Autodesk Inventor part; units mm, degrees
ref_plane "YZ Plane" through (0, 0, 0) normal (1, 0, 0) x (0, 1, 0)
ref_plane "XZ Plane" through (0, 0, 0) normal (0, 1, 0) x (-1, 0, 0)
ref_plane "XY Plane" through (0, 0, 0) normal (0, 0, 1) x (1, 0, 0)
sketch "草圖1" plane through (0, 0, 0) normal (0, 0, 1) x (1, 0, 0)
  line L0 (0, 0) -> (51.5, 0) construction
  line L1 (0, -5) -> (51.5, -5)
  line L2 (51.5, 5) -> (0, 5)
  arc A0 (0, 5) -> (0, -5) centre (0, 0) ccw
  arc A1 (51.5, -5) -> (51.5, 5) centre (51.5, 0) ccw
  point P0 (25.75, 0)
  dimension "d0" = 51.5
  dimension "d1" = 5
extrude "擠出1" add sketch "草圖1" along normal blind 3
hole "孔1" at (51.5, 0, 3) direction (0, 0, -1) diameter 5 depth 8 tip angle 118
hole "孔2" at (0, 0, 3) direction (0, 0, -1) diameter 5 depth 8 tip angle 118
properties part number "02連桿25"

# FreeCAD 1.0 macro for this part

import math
import FreeCAD as App
import Part
import Sketcher
from FreeCAD import Vector
Q = App.Units.Quantity

doc = App.newDocument("Part")
params = doc.addObject("Spreadsheet::Sheet", "Params")
for row, (alias, value) in enumerate([
    ("sketch1_radius", "5 mm"),
    ("sketch1_width", "51.5 mm"),
    ("pad1_length", "3 mm"),
    ("sketch2_diameter", "5 mm"),
    ("hole_diameter", "5 mm"),
    ("hole_depth", "8 mm"),
    ("sketch3_diameter", "5 mm"),
    ("hole2_diameter", "5 mm"),
    ("hole2_depth", "8 mm"),
], start=1):
    params.set(f"A{row}", alias)
    params.set(f"B{row}", "=" + value)
    params.setAlias(f"B{row}", alias)

body = doc.addObject("PartDesign::Body", "Body")

sketch1 = body.newObject("Sketcher::SketchObject", "Sketch")
sketch1.AttachmentSupport = (doc.getObject("XY_Plane"), [""])
sketch1.MapMode = "FlatFace"
sketch1.addGeometry([
    Part.ArcOfCircle(Part.Circle(Vector(0, 0, 0), Vector(0, 0, 1), 5), math.radians(90), math.radians(270)),
    Part.LineSegment(Vector(0, -5, 0), Vector(51.5, -5, 0)),
    Part.ArcOfCircle(Part.Circle(Vector(51.5, 0, 0), Vector(0, 0, 1), 5), math.radians(-90), math.radians(90)),
    Part.LineSegment(Vector(51.5, 5, 0), Vector(0, 5, 0)),
], False)
sketch1.addConstraint([
    Sketcher.Constraint("Tangent", 0, 2, 1, 1),
    Sketcher.Constraint("Tangent", 1, 2, 2, 1),
    Sketcher.Constraint("Tangent", 2, 2, 3, 1),
    Sketcher.Constraint("Tangent", 3, 2, 0, 1),
    Sketcher.Constraint("Horizontal", 1),
    Sketcher.Constraint("Horizontal", 3),
    Sketcher.Constraint("Coincident", 0, 3, -1, 1),
    Sketcher.Constraint("Radius", 0, Q("5 mm")),
    Sketcher.Constraint("DistanceX", 1, 1, 1, 2, Q("51.5 mm")),
])
sketch1.setExpression("Constraints[7]", "Params.sketch1_radius")
sketch1.setExpression("Constraints[8]", "Params.sketch1_width")
pad1 = body.newObject("PartDesign::Pad", "Pad")
pad1.Profile = sketch1
pad1.setExpression("Length", "Params.pad1_length")

sketch2 = body.newObject("Sketcher::SketchObject", "Sketch001")
sketch2.AttachmentSupport = (doc.getObject("XY_Plane"), [""])
sketch2.MapMode = "FlatFace"
sketch2.AttachmentOffset = App.Placement(Vector(0, 0, 3), App.Rotation())
sketch2.addGeometry(Part.Circle(Vector(51.5, 0, 0), Vector(0, 0, 1), 2.5), False)
sketch2.addConstraint([
    Sketcher.Constraint("PointOnObject", 0, 3, -1),
    Sketcher.Constraint("Diameter", 0, Q("5 mm")),
    Sketcher.Constraint("DistanceX", -1, 1, 0, 3, Q("51.5 mm")),
])
sketch2.setExpression("Constraints[1]", "Params.sketch2_diameter")
doc.recompute()
hole = body.newObject("PartDesign::Hole", "Hole")
hole.Profile = sketch2
hole.ThreadType = "None"
hole.setExpression("Diameter", "Params.hole_diameter")
hole.DepthType = "Dimension"
hole.setExpression("Depth", "Params.hole_depth")
hole.DrillPoint = "Angled"
hole.DrillPointAngle = 118

sketch3 = body.newObject("Sketcher::SketchObject", "Sketch002")
sketch3.AttachmentSupport = (doc.getObject("XY_Plane"), [""])
sketch3.MapMode = "FlatFace"
sketch3.AttachmentOffset = App.Placement(Vector(0, 0, 3), App.Rotation())
sketch3.addGeometry(Part.Circle(Vector(0, 0, 0), Vector(0, 0, 1), 2.5), False)
sketch3.addConstraint([
    Sketcher.Constraint("Coincident", 0, 3, -1, 1),
    Sketcher.Constraint("Diameter", 0, Q("5 mm")),
])
sketch3.setExpression("Constraints[1]", "Params.sketch3_diameter")
doc.recompute()
hole2 = body.newObject("PartDesign::Hole", "Hole001")
hole2.Profile = sketch3
hole2.ThreadType = "None"
hole2.setExpression("Diameter", "Params.hole2_diameter")
hole2.DepthType = "Dimension"
hole2.setExpression("Depth", "Params.hole2_depth")
hole2.DrillPoint = "Angled"
hole2.DrillPointAngle = 118

doc.recompute()
